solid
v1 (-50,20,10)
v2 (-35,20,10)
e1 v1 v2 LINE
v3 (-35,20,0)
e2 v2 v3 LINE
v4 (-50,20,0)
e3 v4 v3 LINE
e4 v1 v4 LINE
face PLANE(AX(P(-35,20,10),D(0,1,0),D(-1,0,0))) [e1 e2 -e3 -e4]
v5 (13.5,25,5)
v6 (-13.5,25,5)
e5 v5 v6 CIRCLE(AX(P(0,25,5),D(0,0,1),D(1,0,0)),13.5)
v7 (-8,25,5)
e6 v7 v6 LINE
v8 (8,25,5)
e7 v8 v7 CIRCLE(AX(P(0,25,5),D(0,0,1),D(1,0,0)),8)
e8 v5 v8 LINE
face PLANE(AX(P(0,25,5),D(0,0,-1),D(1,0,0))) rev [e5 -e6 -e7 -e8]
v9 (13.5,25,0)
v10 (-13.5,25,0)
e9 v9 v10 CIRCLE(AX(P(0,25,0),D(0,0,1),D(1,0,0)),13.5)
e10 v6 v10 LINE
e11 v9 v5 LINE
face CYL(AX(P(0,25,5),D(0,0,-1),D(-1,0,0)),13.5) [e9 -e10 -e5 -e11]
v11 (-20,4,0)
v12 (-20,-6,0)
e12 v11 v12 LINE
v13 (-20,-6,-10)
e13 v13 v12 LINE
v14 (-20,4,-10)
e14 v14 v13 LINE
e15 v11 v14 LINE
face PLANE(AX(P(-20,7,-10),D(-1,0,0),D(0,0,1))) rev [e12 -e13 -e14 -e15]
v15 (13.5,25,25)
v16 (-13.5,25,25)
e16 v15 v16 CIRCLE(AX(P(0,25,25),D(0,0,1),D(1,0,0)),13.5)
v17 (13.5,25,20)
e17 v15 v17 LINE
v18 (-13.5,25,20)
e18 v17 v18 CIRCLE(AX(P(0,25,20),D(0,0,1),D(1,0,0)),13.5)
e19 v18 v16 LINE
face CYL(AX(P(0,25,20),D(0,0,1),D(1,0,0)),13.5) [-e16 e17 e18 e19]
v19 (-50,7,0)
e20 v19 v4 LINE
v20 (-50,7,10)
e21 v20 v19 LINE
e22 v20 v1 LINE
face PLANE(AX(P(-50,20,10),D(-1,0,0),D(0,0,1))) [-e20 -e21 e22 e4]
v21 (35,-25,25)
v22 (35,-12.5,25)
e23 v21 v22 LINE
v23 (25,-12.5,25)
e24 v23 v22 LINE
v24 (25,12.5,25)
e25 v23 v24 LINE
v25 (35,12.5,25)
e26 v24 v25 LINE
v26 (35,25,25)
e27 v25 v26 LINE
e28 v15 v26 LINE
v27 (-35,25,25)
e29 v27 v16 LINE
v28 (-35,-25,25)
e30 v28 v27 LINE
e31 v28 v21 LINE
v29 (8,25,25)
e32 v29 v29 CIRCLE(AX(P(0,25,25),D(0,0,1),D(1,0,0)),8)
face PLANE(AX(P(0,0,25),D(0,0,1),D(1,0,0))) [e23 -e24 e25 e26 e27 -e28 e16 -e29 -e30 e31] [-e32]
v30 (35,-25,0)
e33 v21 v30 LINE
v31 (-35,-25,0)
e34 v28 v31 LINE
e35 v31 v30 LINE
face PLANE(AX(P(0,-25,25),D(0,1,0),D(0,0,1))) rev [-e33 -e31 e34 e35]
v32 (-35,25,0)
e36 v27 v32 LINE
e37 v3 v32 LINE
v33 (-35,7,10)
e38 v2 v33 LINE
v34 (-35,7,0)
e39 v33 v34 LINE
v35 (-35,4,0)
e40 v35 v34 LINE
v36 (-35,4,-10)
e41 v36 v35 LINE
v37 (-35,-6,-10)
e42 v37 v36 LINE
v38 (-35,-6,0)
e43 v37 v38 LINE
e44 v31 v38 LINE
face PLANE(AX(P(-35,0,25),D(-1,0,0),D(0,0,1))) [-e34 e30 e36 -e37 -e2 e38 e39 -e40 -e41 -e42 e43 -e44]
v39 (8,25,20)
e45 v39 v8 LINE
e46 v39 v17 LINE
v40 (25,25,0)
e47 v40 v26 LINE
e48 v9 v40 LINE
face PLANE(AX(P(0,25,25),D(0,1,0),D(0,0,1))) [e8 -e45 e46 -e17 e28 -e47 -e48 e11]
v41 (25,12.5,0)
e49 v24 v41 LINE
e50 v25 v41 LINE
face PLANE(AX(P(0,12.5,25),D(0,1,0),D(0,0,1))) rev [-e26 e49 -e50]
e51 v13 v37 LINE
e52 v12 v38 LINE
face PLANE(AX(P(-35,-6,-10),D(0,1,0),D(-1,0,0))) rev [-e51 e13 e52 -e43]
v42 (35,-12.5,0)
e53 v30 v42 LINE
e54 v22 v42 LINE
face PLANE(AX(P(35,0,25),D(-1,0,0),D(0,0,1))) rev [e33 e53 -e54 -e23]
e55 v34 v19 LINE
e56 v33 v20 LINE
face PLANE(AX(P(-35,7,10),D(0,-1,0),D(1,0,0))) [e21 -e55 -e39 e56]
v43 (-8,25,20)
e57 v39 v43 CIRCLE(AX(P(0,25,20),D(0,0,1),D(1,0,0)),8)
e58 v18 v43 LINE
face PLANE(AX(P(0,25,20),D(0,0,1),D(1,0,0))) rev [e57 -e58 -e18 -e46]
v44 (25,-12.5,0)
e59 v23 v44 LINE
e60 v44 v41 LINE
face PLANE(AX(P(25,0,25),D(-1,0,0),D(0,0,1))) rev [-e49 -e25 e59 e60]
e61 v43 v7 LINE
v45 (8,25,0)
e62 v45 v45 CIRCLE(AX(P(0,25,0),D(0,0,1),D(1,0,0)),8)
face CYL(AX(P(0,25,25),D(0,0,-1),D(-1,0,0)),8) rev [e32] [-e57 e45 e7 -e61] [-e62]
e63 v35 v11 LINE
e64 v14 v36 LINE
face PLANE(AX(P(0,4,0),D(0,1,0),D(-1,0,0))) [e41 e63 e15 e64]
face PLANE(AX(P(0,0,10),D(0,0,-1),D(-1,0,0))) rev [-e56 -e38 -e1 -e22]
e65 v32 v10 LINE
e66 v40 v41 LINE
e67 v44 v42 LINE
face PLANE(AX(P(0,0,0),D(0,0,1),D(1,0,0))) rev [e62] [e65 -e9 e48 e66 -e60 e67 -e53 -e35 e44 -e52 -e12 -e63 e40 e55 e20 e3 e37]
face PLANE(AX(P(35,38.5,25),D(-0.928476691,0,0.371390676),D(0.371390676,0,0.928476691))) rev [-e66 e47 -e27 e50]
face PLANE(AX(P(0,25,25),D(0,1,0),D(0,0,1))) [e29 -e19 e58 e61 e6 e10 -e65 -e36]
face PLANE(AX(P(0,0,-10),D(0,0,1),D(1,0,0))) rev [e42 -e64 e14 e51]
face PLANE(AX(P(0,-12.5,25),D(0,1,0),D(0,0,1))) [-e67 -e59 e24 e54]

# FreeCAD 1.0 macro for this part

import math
import FreeCAD as App
import Part
import Sketcher
Q = App.Units.Quantity

doc = App.newDocument("Part")
body = doc.addObject("PartDesign::Body", "Body")

# Sketch on XY plane
sketch1 = body.newObject("Sketcher::SketchObject", "Sketch")
sketch1.AttachmentSupport = (doc.getObject("XY_Plane"), [""])
sketch1.MapMode = "FlatFace"
sketch1.addGeometry([
    Part.LineSegment(App.Vector(-35, 25, 0), App.Vector(-35, -25, 0)),  # 0
    Part.LineSegment(App.Vector(-35, -25, 0), App.Vector(35, -25, 0)),  # 1
    Part.LineSegment(App.Vector(35, -25, 0), App.Vector(35, -12.5, 0)),  # 2
    Part.LineSegment(App.Vector(35, -12.5, 0), App.Vector(25, -12.5, 0)),  # 3
    Part.LineSegment(App.Vector(25, -12.5, 0), App.Vector(25, 12.5, 0)),  # 4
    Part.LineSegment(App.Vector(25, 12.5, 0), App.Vector(35, 12.5, 0)),  # 5
    Part.LineSegment(App.Vector(35, 12.5, 0), App.Vector(35, 25, 0)),  # 6
    Part.LineSegment(App.Vector(35, 25, 0), App.Vector(8, 25, 0)),  # 7
    Part.ArcOfCircle(Part.Circle(App.Vector(0, 25, 0), App.Vector(0, 0, 1), 8), math.radians(180), math.radians(360)),  # 8
    Part.LineSegment(App.Vector(-8, 25, 0), App.Vector(-35, 25, 0)),  # 9
    Part.LineSegment(App.Vector(4, -4, 0), App.Vector(4, -19, 0)),  # 10
    Part.LineSegment(App.Vector(4, -19, 0), App.Vector(-4, -19, 0)),  # 11
    Part.LineSegment(App.Vector(-4, -19, 0), App.Vector(-4, 4, 0)),  # 12
    Part.LineSegment(App.Vector(-4, 4, 0), App.Vector(0, 4, 0)),  # 13
    Part.LineSegment(App.Vector(0, 4, 0), App.Vector(0, -4, 0)),  # 14
    Part.LineSegment(App.Vector(0, -4, 0), App.Vector(4, -4, 0)),  # 15
], False)
sketch1.addConstraint([
    Sketcher.Constraint("Coincident", 0, 2, 1, 1),
    Sketcher.Constraint("Coincident", 1, 2, 2, 1),
    Sketcher.Constraint("Coincident", 2, 2, 3, 1),
    Sketcher.Constraint("Coincident", 3, 2, 4, 1),
    Sketcher.Constraint("Coincident", 4, 2, 5, 1),
    Sketcher.Constraint("Coincident", 5, 2, 6, 1),
    Sketcher.Constraint("Coincident", 6, 2, 7, 1),
    Sketcher.Constraint("Coincident", 7, 2, 8, 2),
    Sketcher.Constraint("Coincident", 8, 1, 9, 1),
    Sketcher.Constraint("Coincident", 9, 2, 0, 1),
    Sketcher.Constraint("Coincident", 10, 2, 11, 1),
    Sketcher.Constraint("Coincident", 11, 2, 12, 1),
    Sketcher.Constraint("Coincident", 12, 2, 13, 1),
    Sketcher.Constraint("Coincident", 13, 2, 14, 1),
    Sketcher.Constraint("Coincident", 14, 2, 15, 1),
    Sketcher.Constraint("Coincident", 15, 2, 10, 1),
    Sketcher.Constraint("Vertical", 0),
    Sketcher.Constraint("Horizontal", 1),
    Sketcher.Constraint("Vertical", 2),
    Sketcher.Constraint("Horizontal", 3),
    Sketcher.Constraint("Vertical", 4),
    Sketcher.Constraint("Horizontal", 5),
    Sketcher.Constraint("Vertical", 6),
    Sketcher.Constraint("Horizontal", 7),
    Sketcher.Constraint("Horizontal", 9),
    Sketcher.Constraint("Vertical", 10),
    Sketcher.Constraint("Horizontal", 11),
    Sketcher.Constraint("Vertical", 12),
    Sketcher.Constraint("Horizontal", 13),
    Sketcher.Constraint("Vertical", 14),
    Sketcher.Constraint("Horizontal", 15),
    Sketcher.Constraint("Symmetric", 0, 2, 6, 2, -1, 1),
    Sketcher.Constraint("Symmetric", 1, 2, 9, 2, -1, 1),
    Sketcher.Constraint("Symmetric", 13, 2, 14, 2, -1, 1),
    Sketcher.Constraint("PointOnObject", 8, 3, -2),
    Sketcher.Constraint("Horizontal", 8, 3, 6, 2),
    Sketcher.Constraint("Equal", 13, 15),
    Sketcher.Constraint("Equal", 2, 6),
    Sketcher.Constraint("Equal", 11, 14),
    Sketcher.Constraint("Radius", 8, Q("8 mm")),
    Sketcher.Constraint("DistanceX", 1, 1, 1, 2, Q("70 mm")),
    Sketcher.Constraint("DistanceX", 3, 2, 3, 1, Q("10 mm")),
    Sketcher.Constraint("DistanceX", 11, 2, 11, 1, Q("8 mm")),
    Sketcher.Constraint("DistanceY", 0, 2, 0, 1, Q("50 mm")),
    Sketcher.Constraint("DistanceY", 4, 1, 4, 2, Q("25 mm")),
    Sketcher.Constraint("DistanceY", 10, 2, 10, 1, Q("15 mm")),
])
pad1 = body.newObject("PartDesign::Pad", "Pad")
pad1.Profile = sketch1
pad1.Length = 25

# Sketch on XY plane
sketch2 = body.newObject("Sketcher::SketchObject", "Sketch001")
sketch2.AttachmentSupport = (doc.getObject("XY_Plane"), [""])
sketch2.MapMode = "FlatFace"
sketch2.AttachmentOffset = App.Placement(App.Vector(0, 0, 20), App.Rotation())
sketch2.addGeometry([
    Part.Circle(App.Vector(0, 25, 0), App.Vector(0, 0, 1), 14),
    Part.Circle(App.Vector(0, 25, 0), App.Vector(0, 0, 1), 8),
], False)
sketch2.addConstraint([
    Sketcher.Constraint("Coincident", 1, 3, 0, 3),
    Sketcher.Constraint("PointOnObject", 0, 3, -2),
    Sketcher.Constraint("Diameter", 0, Q("27 mm")),
    Sketcher.Constraint("Diameter", 1, Q("16 mm")),
    Sketcher.Constraint("DistanceY", -1, 1, 0, 3, Q("25 mm")),
])
pad2 = body.newObject("PartDesign::Pad", "Pad001")
pad2.Profile = sketch2
pad2.Length = 5

# Sketch on XZ plane
sketch3 = body.newObject("Sketcher::SketchObject", "Sketch002")
sketch3.AttachmentSupport = (doc.getObject("XZ_Plane"), [""])
sketch3.MapMode = "FlatFace"
sketch3.AttachmentOffset = App.Placement(App.Vector(0, 0, -12.5), App.Rotation())
sketch3.addGeometry([
    Part.LineSegment(App.Vector(35, 25, 0), App.Vector(25, 0, 0)),
    Part.LineSegment(App.Vector(25, 0, 0), App.Vector(35, 0, 0)),
    Part.LineSegment(App.Vector(35, 0, 0), App.Vector(35, 25, 0)),
], False)
sketch3.addConstraint([
    Sketcher.Constraint("Coincident", 0, 2, 1, 1),
    Sketcher.Constraint("Coincident", 1, 2, 2, 1),
    Sketcher.Constraint("Coincident", 2, 2, 0, 1),
    Sketcher.Constraint("Horizontal", 1),
    Sketcher.Constraint("Vertical", 2),
    Sketcher.Constraint("PointOnObject", 0, 2, -1),
    Sketcher.Constraint("DistanceX", 1, 1, 1, 2, Q("10 mm")),
    Sketcher.Constraint("DistanceY", 2, 1, 2, 2, Q("25 mm")),
    Sketcher.Constraint("DistanceX", -1, 1, 0, 2, Q("25 mm")),
])
pocket1 = body.newObject("PartDesign::Pocket", "Pocket")
pocket1.Profile = sketch3
pocket1.Type = "ThroughAll"

# Sketch on XY plane
sketch4 = body.newObject("Sketcher::SketchObject", "Sketch003")
sketch4.AttachmentSupport = (doc.getObject("XY_Plane"), [""])
sketch4.MapMode = "FlatFace"
sketch4.AttachmentOffset = App.Placement(App.Vector(0, 0, 25), App.Rotation())
sketch4.addGeometry([
    Part.LineSegment(App.Vector(-35, 7, 0), App.Vector(-35, -7, 0)),
    Part.LineSegment(App.Vector(-35, -7, 0), App.Vector(-25, -7, 0)),
    Part.LineSegment(App.Vector(-25, -7, 0), App.Vector(-25, 7, 0)),
    Part.LineSegment(App.Vector(-25, 7, 0), App.Vector(-35, 7, 0)),
], False)
sketch4.addConstraint([
    Sketcher.Constraint("Coincident", 0, 2, 1, 1),
    Sketcher.Constraint("Coincident", 1, 2, 2, 1),
    Sketcher.Constraint("Coincident", 2, 2, 3, 1),
    Sketcher.Constraint("Coincident", 3, 2, 0, 1),
    Sketcher.Constraint("Vertical", 0),
    Sketcher.Constraint("Horizontal", 1),
    Sketcher.Constraint("Vertical", 2),
    Sketcher.Constraint("Horizontal", 3),
    Sketcher.Constraint("DistanceX", 1, 1, 1, 2, Q("10 mm")),
    Sketcher.Constraint("DistanceY", 0, 2, 0, 1, Q("14 mm")),
    Sketcher.Constraint("DistanceX", 0, 2, -1, 1, Q("35 mm")),
    Sketcher.Constraint("DistanceY", 0, 2, -1, 1, Q("7 mm")),
])
pad3 = body.newObject("PartDesign::Pad", "Pad002")
pad3.Profile = sketch4
pad3.Length = 11

# Sketch on XY plane
sketch5 = body.newObject("Sketcher::SketchObject", "Sketch004")
sketch5.AttachmentSupport = (doc.getObject("XY_Plane"), [""])
sketch5.MapMode = "FlatFace"
sketch5.addGeometry([
    Part.LineSegment(App.Vector(-35, 20, 0), App.Vector(-35, 7, 0)),
    Part.LineSegment(App.Vector(-35, 7, 0), App.Vector(-50, 7, 0)),
    Part.LineSegment(App.Vector(-50, 7, 0), App.Vector(-50, 20, 0)),
    Part.LineSegment(App.Vector(-50, 20, 0), App.Vector(-35, 20, 0)),
], False)
sketch5.addConstraint([
    Sketcher.Constraint("Coincident", 0, 2, 1, 1),
    Sketcher.Constraint("Coincident", 1, 2, 2, 1),
    Sketcher.Constraint("Coincident", 2, 2, 3, 1),
    Sketcher.Constraint("Coincident", 3, 2, 0, 1),
    Sketcher.Constraint("Vertical", 0),
    Sketcher.Constraint("Horizontal", 1),
    Sketcher.Constraint("Vertical", 2),
    Sketcher.Constraint("Horizontal", 3),
    Sketcher.Constraint("DistanceX", 1, 2, 1, 1, Q("15 mm")),
    Sketcher.Constraint("DistanceY", 0, 2, 0, 1, Q("13 mm")),
    Sketcher.Constraint("DistanceX", 0, 2, -1, 1, Q("35 mm")),
    Sketcher.Constraint("DistanceY", -1, 1, 0, 2, Q("7 mm")),
])
pad4 = body.newObject("PartDesign::Pad", "Pad003")
pad4.Profile = sketch5
pad4.Length = 10

# Sketch on XY plane
sketch6 = body.newObject("Sketcher::SketchObject", "Sketch005")
sketch6.AttachmentSupport = (doc.getObject("XY_Plane"), [""])
sketch6.MapMode = "FlatFace"
sketch6.AttachmentOffset = App.Placement(App.Vector(0, 0, 36), App.Rotation())
sketch6.addGeometry([
    Part.LineSegment(App.Vector(-35, 7, 0), App.Vector(-35, -7, 0)),
    Part.LineSegment(App.Vector(-35, -7, 0), App.Vector(-25, -7, 0)),
    Part.LineSegment(App.Vector(-25, -7, 0), App.Vector(-25, 7, 0)),
    Part.LineSegment(App.Vector(-25, 7, 0), App.Vector(-35, 7, 0)),
], False)
sketch6.addConstraint([
    Sketcher.Constraint("Coincident", 0, 2, 1, 1),
    Sketcher.Constraint("Coincident", 1, 2, 2, 1),
    Sketcher.Constraint("Coincident", 2, 2, 3, 1),
    Sketcher.Constraint("Coincident", 3, 2, 0, 1),
    Sketcher.Constraint("Vertical", 0),
    Sketcher.Constraint("Horizontal", 1),
    Sketcher.Constraint("Vertical", 2),
    Sketcher.Constraint("Horizontal", 3),
    Sketcher.Constraint("DistanceX", 1, 1, 1, 2, Q("10 mm")),
    Sketcher.Constraint("DistanceY", 0, 2, 0, 1, Q("14 mm")),
    Sketcher.Constraint("DistanceX", 0, 2, -1, 1, Q("35 mm")),
    Sketcher.Constraint("DistanceY", 0, 2, -1, 1, Q("7 mm")),
])
pocket2 = body.newObject("PartDesign::Pocket", "Pocket001")
pocket2.Profile = sketch6
pocket2.Length = 11

# Sketch on XY plane
sketch7 = body.newObject("Sketcher::SketchObject", "Sketch006")
sketch7.AttachmentSupport = (doc.getObject("XY_Plane"), [""])
sketch7.MapMode = "FlatFace"
sketch7.addGeometry([
    Part.LineSegment(App.Vector(-20, 7, 0), App.Vector(-20, -6, 0)),
    Part.LineSegment(App.Vector(-20, -6, 0), App.Vector(-35, -6, 0)),
    Part.LineSegment(App.Vector(-35, -6, 0), App.Vector(-35, 7, 0)),
    Part.LineSegment(App.Vector(-35, 7, 0), App.Vector(-20, 7, 0)),
], False)
sketch7.addConstraint([
    Sketcher.Constraint("Coincident", 0, 2, 1, 1),
    Sketcher.Constraint("Coincident", 1, 2, 2, 1),
    Sketcher.Constraint("Coincident", 2, 2, 3, 1),
    Sketcher.Constraint("Coincident", 3, 2, 0, 1),
    Sketcher.Constraint("Vertical", 0),
    Sketcher.Constraint("Horizontal", 1),
    Sketcher.Constraint("Vertical", 2),
    Sketcher.Constraint("Horizontal", 3),
    Sketcher.Constraint("DistanceX", 1, 2, 1, 1, Q("15 mm")),
    Sketcher.Constraint("DistanceY", 0, 2, 0, 1, Q("13 mm")),
    Sketcher.Constraint("DistanceX", 0, 2, -1, 1, Q("20 mm")),
    Sketcher.Constraint("DistanceY", 0, 2, -1, 1, Q("6 mm")),
])
pad5 = body.newObject("PartDesign::Pad", "Pad004")
pad5.Profile = sketch7
pad5.Length = 10
pad5.Reversed = True

# Sketch on XZ plane
sketch8 = body.newObject("Sketcher::SketchObject", "Sketch007")
sketch8.AttachmentSupport = (doc.getObject("XZ_Plane"), [""])
sketch8.MapMode = "FlatFace"
sketch8.AttachmentOffset = App.Placement(App.Vector(0, 0, -7), App.Rotation())
sketch8.addGeometry([
    Part.LineSegment(App.Vector(-35, -10, 0), App.Vector(-35, 0, 0)),
    Part.LineSegment(App.Vector(-35, 0, 0), App.Vector(-20, 0, 0)),
    Part.LineSegment(App.Vector(-20, 0, 0), App.Vector(-20, -10, 0)),
    Part.LineSegment(App.Vector(-20, -10, 0), App.Vector(-35, -10, 0)),
], False)
sketch8.addConstraint([
    Sketcher.Constraint("Coincident", 0, 2, 1, 1),
    Sketcher.Constraint("Coincident", 1, 2, 2, 1),
    Sketcher.Constraint("Coincident", 2, 2, 3, 1),
    Sketcher.Constraint("Coincident", 3, 2, 0, 1),
    Sketcher.Constraint("Vertical", 0),
    Sketcher.Constraint("Horizontal", 1),
    Sketcher.Constraint("Vertical", 2),
    Sketcher.Constraint("Horizontal", 3),
    Sketcher.Constraint("PointOnObject", 0, 2, -1),
    Sketcher.Constraint("DistanceX", 1, 1, 1, 2, Q("15 mm")),
    Sketcher.Constraint("DistanceY", 0, 1, 0, 2, Q("10 mm")),
    Sketcher.Constraint("DistanceX", 0, 2, -1, 1, Q("35 mm")),
])
pocket3 = body.newObject("PartDesign::Pocket", "Pocket002")
pocket3.Profile = sketch8
pocket3.Length = 3
pocket3.Reversed = True

# Sketch on XY plane
sketch9 = body.newObject("Sketcher::SketchObject", "Sketch008")
sketch9.AttachmentSupport = (doc.getObject("XY_Plane"), [""])
sketch9.MapMode = "FlatFace"
sketch9.addGeometry([
    Part.LineSegment(App.Vector(-4, -19, 0), App.Vector(-4, 4, 0)),  # 0
    Part.LineSegment(App.Vector(-4, 4, 0), App.Vector(0, 4, 0)),  # 1
    Part.LineSegment(App.Vector(0, 4, 0), App.Vector(0, -4, 0)),  # 2
    Part.LineSegment(App.Vector(0, -4, 0), App.Vector(4, -4, 0)),  # 3
    Part.LineSegment(App.Vector(4, -4, 0), App.Vector(4, -19, 0)),  # 4
    Part.LineSegment(App.Vector(4, -19, 0), App.Vector(-4, -19, 0)),  # 5
], False)
sketch9.addConstraint([
    Sketcher.Constraint("Coincident", 0, 2, 1, 1),
    Sketcher.Constraint("Coincident", 1, 2, 2, 1),
    Sketcher.Constraint("Coincident", 2, 2, 3, 1),
    Sketcher.Constraint("Coincident", 3, 2, 4, 1),
    Sketcher.Constraint("Coincident", 4, 2, 5, 1),
    Sketcher.Constraint("Coincident", 5, 2, 0, 1),
    Sketcher.Constraint("Vertical", 0),
    Sketcher.Constraint("Horizontal", 1),
    Sketcher.Constraint("Vertical", 2),
    Sketcher.Constraint("Horizontal", 3),
    Sketcher.Constraint("Vertical", 4),
    Sketcher.Constraint("Horizontal", 5),
    Sketcher.Constraint("Symmetric", 1, 2, 2, 2, -1, 1),
    Sketcher.Constraint("Equal", 1, 3),
    Sketcher.Constraint("Equal", 5, 2),
    Sketcher.Constraint("DistanceX", 1, 1, 1, 2, Q("4 mm")),
    Sketcher.Constraint("DistanceY", 0, 1, 0, 2, Q("23 mm")),
])
pad6 = body.newObject("PartDesign::Pad", "Pad005")
pad6.Profile = sketch9
pad6.Length = 25
doc.recompute()

datumplane = body.newObject("PartDesign::Plane", "DatumPlane")
datumplane.AttachmentSupport = (doc.getObject("XY_Plane"), [""])
datumplane.MapMode = "FlatFace"
datumplane.AttachmentOffset = App.Placement(App.Vector(0, 0, 12.5), App.Rotation())
mirrored = body.newObject("PartDesign::Mirrored", "Mirrored")
mirrored.Originals = [pad2]
mirrored.MirrorPlane = (datumplane, [""])
body.Tip = mirrored

doc.recompute()
